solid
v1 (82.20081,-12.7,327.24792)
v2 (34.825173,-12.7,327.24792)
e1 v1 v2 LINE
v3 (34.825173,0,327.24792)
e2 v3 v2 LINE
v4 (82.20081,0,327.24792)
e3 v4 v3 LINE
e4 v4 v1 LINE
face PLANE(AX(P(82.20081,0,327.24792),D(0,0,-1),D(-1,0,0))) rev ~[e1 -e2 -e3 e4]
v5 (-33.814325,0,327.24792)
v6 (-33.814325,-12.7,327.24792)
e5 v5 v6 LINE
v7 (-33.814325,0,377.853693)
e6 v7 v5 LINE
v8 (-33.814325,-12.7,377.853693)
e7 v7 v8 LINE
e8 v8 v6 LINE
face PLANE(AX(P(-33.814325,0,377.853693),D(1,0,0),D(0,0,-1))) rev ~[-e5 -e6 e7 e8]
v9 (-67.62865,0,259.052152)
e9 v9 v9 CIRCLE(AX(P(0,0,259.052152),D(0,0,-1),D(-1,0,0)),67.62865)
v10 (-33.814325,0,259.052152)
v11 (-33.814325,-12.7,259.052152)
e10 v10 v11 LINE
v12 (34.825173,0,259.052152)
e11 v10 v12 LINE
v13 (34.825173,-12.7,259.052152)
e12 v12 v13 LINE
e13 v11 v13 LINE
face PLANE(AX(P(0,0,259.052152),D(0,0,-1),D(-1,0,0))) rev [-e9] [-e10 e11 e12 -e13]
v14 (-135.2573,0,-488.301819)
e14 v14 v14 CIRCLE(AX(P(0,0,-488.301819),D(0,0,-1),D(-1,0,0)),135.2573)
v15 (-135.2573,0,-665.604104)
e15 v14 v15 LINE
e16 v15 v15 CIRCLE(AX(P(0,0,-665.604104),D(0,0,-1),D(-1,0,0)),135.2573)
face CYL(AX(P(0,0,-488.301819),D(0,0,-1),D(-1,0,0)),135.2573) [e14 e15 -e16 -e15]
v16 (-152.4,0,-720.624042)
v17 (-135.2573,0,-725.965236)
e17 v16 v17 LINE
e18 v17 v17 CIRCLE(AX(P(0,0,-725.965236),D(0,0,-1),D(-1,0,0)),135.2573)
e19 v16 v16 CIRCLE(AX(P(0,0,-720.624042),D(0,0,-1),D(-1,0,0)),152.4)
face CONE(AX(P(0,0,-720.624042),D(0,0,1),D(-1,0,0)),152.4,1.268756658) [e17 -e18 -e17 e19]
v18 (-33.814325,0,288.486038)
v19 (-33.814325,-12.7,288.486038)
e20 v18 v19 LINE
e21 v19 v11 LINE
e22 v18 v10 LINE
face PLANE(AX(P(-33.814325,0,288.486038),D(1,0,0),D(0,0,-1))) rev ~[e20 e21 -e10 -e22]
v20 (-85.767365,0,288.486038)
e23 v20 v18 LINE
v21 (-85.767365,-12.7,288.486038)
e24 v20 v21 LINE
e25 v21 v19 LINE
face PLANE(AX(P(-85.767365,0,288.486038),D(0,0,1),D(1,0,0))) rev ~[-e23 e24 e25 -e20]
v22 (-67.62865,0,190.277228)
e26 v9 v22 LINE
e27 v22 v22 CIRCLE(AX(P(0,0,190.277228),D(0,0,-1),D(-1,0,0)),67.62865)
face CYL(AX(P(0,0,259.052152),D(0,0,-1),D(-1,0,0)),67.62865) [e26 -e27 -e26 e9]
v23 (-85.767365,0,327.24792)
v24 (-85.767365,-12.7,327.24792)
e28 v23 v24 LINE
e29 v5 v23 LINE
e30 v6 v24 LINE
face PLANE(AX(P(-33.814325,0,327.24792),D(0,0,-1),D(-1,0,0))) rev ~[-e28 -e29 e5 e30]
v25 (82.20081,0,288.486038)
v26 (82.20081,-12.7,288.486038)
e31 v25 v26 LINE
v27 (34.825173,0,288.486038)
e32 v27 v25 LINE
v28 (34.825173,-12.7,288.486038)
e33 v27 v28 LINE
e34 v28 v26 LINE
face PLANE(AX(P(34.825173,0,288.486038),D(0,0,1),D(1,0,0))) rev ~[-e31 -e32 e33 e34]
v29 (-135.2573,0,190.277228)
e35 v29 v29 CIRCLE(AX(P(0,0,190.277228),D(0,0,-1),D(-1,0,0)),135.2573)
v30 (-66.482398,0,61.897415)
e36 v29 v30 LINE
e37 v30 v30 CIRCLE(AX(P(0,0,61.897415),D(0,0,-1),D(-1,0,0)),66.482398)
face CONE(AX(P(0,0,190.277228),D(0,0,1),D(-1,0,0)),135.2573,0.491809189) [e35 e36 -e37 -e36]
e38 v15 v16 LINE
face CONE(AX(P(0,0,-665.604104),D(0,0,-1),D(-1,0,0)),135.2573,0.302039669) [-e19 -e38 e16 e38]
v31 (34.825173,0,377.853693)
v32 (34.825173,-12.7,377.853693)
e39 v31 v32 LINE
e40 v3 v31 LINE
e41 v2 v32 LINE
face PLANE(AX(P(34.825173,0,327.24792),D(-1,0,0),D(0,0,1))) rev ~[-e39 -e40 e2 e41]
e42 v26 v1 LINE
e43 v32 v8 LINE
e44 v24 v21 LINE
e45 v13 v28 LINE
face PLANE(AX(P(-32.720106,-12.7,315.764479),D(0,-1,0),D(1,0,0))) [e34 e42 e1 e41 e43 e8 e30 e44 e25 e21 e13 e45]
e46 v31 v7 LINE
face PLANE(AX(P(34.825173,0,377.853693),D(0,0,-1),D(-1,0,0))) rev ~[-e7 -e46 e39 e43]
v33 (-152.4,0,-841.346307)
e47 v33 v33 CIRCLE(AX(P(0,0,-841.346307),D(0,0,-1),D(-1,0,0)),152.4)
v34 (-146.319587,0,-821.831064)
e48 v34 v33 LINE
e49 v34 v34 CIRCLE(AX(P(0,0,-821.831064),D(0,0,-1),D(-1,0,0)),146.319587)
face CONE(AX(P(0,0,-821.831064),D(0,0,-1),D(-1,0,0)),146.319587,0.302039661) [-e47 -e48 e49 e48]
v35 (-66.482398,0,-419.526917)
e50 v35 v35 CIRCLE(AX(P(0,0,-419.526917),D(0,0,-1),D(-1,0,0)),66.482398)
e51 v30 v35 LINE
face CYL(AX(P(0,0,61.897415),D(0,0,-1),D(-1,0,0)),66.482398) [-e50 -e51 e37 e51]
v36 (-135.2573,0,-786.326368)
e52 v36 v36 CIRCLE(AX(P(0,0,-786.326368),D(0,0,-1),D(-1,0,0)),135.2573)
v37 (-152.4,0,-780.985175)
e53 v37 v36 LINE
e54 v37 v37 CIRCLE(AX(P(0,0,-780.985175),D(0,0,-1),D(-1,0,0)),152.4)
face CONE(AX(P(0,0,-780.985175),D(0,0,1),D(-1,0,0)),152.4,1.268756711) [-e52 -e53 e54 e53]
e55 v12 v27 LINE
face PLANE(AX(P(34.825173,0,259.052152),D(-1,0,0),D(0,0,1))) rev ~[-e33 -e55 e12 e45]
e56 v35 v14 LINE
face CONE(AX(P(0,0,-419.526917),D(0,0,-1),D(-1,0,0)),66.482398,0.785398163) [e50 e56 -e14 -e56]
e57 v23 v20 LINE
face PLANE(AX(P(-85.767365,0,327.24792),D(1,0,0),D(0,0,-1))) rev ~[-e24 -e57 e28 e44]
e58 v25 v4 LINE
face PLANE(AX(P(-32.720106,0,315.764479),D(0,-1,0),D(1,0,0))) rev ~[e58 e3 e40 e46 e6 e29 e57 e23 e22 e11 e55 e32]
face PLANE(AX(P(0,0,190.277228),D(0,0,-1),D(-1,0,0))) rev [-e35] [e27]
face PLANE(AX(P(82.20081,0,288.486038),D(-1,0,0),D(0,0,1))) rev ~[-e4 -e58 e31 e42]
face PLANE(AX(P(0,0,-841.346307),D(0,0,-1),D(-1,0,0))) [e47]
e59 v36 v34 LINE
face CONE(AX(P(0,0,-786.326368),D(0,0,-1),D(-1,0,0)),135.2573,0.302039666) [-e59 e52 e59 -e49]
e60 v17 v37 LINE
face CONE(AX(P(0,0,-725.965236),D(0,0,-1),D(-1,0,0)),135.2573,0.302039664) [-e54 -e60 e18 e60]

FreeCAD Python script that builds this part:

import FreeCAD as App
import Part
import Sketcher
Q = App.Units.Quantity


def add_polygon(sketch, points):
    """Adds a closed chain of lines whose ends are joined by coincident constraints."""
    first, n = sketch.GeometryCount, len(points)
    for a, b in zip(points, points[1:] + points[:1]):
        sketch.addGeometry(Part.LineSegment(App.Vector(*a, 0), App.Vector(*b, 0)), False)
    for i in range(n):
        sketch.addConstraint(Sketcher.Constraint("Coincident", first + i, 2, first + (i + 1) % n, 1))

doc = App.newDocument("Part")
body = doc.addObject("PartDesign::Body", "Body")

# Sketch on XZ plane
sketch1 = body.newObject("Sketcher::SketchObject", "Sketch")
sketch1.AttachmentSupport = (doc.getObject("XZ_Plane"), [""])
sketch1.MapMode = "FlatFace"
add_polygon(sketch1, [(0, 259), (-68, 259), (-68, 190), (-135, 190), (-66, 62), (-66, -420), (-135, -488), (-135, -666), (-152, -721), (-135, -726), (-152, -781), (-135, -786), (-146, -822), (-152, -841), (0, -841)])  # lines 0-14
sketch1.addConstraint(Sketcher.Constraint("Horizontal", 0))
sketch1.addConstraint(Sketcher.Constraint("Vertical", 1))
sketch1.addConstraint(Sketcher.Constraint("Horizontal", 2))
sketch1.addConstraint(Sketcher.Constraint("Vertical", 4))
sketch1.addConstraint(Sketcher.Constraint("Vertical", 6))
sketch1.addConstraint(Sketcher.Constraint("Horizontal", 13))
sketch1.addConstraint(Sketcher.Constraint("Vertical", 14))
sketch1.addConstraint(Sketcher.Constraint("PointOnObject", 13, 2, -2))
sketch1.addConstraint(Sketcher.Constraint("Perpendicular", 7, 8))
sketch1.addConstraint(Sketcher.Constraint("Perpendicular", 8, 9))
sketch1.addConstraint(Sketcher.Constraint("Perpendicular", 9, 10))
sketch1.addConstraint(Sketcher.Constraint("Perpendicular", 10, 11))
sketch1.addConstraint(Sketcher.Constraint("Parallel", 11, 12))
sketch1.addConstraint(Sketcher.Constraint("Vertical", 2, 2, 5, 2))
sketch1.addConstraint(Sketcher.Constraint("Vertical", 6, 2, 8, 2))
sketch1.addConstraint(Sketcher.Constraint("Vertical", 7, 2, 9, 2))
sketch1.addConstraint(Sketcher.Constraint("Vertical", 8, 2, 10, 2))
sketch1.addConstraint(Sketcher.Constraint("Vertical", 9, 2, 12, 2))
sketch1.addConstraint(Sketcher.Constraint("Equal", 0, 2))
sketch1.addConstraint(Sketcher.Constraint("DistanceX", 13, 1, 13, 2, Q("6 in")))
sketch1.addConstraint(Sketcher.Constraint("Angle", 5, Q("-135 deg")))
sketch1.addConstraint(Sketcher.Constraint("Distance", 11, Q("1.4640999 in")))
sketch1.addConstraint(Sketcher.Constraint("Distance", 5, Q("97.262399 mm")))
sketch1.addConstraint(Sketcher.Constraint("DistanceX", 0, 2, 0, 1, Q("67.62865 mm")))
sketch1.addConstraint(Sketcher.Constraint("DistanceY", 14, 1, 14, 2, Q("1100.398459 mm")))
sketch1.addConstraint(Sketcher.Constraint("Distance", 7, Q("57.628689 mm")))
sketch1.addConstraint(Sketcher.Constraint("DistanceY", 1, 2, 1, 1, Q("68.774924 mm")))
sketch1.addConstraint(Sketcher.Constraint("DistanceY", 4, 2, 4, 1, Q("481.424332 mm")))
sketch1.addConstraint(Sketcher.Constraint("DistanceY", 6, 2, 6, 1, Q("177.302285 mm")))
sketch1.addConstraint(Sketcher.Constraint("DistanceY", -1, 1, 0, 2, Q("259.052152 mm")))
revolution = body.newObject("PartDesign::Revolution", "Revolution")
revolution.Profile = sketch1
revolution.ReferenceAxis = (sketch1, ["V_Axis"])
revolution.Angle = 360

# Sketch on XZ plane
sketch2 = body.newObject("Sketcher::SketchObject", "Sketch001")
sketch2.AttachmentSupport = (doc.getObject("XZ_Plane"), [""])
sketch2.MapMode = "FlatFace"
add_polygon(sketch2, [(-34, 259), (35, 259), (35, 288), (82, 288), (82, 327), (35, 327), (35, 378), (-34, 378), (-34, 327), (-86, 327), (-86, 288), (-34, 288)])  # lines 0-11
sketch2.addConstraint(Sketcher.Constraint("Horizontal", 0))
sketch2.addConstraint(Sketcher.Constraint("Vertical", 1))
sketch2.addConstraint(Sketcher.Constraint("Horizontal", 2))
sketch2.addConstraint(Sketcher.Constraint("Vertical", 3))
sketch2.addConstraint(Sketcher.Constraint("Horizontal", 4))
sketch2.addConstraint(Sketcher.Constraint("Vertical", 5))
sketch2.addConstraint(Sketcher.Constraint("Horizontal", 6))
sketch2.addConstraint(Sketcher.Constraint("Vertical", 7))
sketch2.addConstraint(Sketcher.Constraint("Horizontal", 8))
sketch2.addConstraint(Sketcher.Constraint("Vertical", 9))
sketch2.addConstraint(Sketcher.Constraint("Horizontal", 10))
sketch2.addConstraint(Sketcher.Constraint("Vertical", 11))
sketch2.addConstraint(Sketcher.Constraint("Horizontal", 4, 2, 7, 2))
sketch2.addConstraint(Sketcher.Constraint("Horizontal", 2, 2, 9, 2))
sketch2.addConstraint(Sketcher.Constraint("Vertical", 1, 2, 4, 2))
sketch2.addConstraint(Sketcher.Constraint("Vertical", 7, 2, 10, 2))
sketch2.addConstraint(Sketcher.Constraint("DistanceX", 0, 1, 0, 2, Q("68.639498 mm")))
sketch2.addConstraint(Sketcher.Constraint("DistanceX", 8, 2, 8, 1, Q("51.95304 mm")))
sketch2.addConstraint(Sketcher.Constraint("DistanceX", 2, 1, 2, 2, Q("47.375637 mm")))
sketch2.addConstraint(Sketcher.Constraint("DistanceY", 1, 1, 1, 2, Q("29.433886 mm")))
sketch2.addConstraint(Sketcher.Constraint("DistanceY", 3, 1, 3, 2, Q("38.761882 mm")))
sketch2.addConstraint(Sketcher.Constraint("DistanceY", 5, 1, 5, 2, Q("50.605773 mm")))
sketch2.addConstraint(Sketcher.Constraint("DistanceY", -1, 1, 0, 2, Q("259.052152 mm")))
sketch2.addConstraint(Sketcher.Constraint("DistanceX", -1, 1, 2, 2, Q("82.20081 mm")))
pad1 = body.newObject("PartDesign::Pad", "Pad")
pad1.Profile = sketch2
pad1.Length = Q("0.5 in")

doc.recompute()
